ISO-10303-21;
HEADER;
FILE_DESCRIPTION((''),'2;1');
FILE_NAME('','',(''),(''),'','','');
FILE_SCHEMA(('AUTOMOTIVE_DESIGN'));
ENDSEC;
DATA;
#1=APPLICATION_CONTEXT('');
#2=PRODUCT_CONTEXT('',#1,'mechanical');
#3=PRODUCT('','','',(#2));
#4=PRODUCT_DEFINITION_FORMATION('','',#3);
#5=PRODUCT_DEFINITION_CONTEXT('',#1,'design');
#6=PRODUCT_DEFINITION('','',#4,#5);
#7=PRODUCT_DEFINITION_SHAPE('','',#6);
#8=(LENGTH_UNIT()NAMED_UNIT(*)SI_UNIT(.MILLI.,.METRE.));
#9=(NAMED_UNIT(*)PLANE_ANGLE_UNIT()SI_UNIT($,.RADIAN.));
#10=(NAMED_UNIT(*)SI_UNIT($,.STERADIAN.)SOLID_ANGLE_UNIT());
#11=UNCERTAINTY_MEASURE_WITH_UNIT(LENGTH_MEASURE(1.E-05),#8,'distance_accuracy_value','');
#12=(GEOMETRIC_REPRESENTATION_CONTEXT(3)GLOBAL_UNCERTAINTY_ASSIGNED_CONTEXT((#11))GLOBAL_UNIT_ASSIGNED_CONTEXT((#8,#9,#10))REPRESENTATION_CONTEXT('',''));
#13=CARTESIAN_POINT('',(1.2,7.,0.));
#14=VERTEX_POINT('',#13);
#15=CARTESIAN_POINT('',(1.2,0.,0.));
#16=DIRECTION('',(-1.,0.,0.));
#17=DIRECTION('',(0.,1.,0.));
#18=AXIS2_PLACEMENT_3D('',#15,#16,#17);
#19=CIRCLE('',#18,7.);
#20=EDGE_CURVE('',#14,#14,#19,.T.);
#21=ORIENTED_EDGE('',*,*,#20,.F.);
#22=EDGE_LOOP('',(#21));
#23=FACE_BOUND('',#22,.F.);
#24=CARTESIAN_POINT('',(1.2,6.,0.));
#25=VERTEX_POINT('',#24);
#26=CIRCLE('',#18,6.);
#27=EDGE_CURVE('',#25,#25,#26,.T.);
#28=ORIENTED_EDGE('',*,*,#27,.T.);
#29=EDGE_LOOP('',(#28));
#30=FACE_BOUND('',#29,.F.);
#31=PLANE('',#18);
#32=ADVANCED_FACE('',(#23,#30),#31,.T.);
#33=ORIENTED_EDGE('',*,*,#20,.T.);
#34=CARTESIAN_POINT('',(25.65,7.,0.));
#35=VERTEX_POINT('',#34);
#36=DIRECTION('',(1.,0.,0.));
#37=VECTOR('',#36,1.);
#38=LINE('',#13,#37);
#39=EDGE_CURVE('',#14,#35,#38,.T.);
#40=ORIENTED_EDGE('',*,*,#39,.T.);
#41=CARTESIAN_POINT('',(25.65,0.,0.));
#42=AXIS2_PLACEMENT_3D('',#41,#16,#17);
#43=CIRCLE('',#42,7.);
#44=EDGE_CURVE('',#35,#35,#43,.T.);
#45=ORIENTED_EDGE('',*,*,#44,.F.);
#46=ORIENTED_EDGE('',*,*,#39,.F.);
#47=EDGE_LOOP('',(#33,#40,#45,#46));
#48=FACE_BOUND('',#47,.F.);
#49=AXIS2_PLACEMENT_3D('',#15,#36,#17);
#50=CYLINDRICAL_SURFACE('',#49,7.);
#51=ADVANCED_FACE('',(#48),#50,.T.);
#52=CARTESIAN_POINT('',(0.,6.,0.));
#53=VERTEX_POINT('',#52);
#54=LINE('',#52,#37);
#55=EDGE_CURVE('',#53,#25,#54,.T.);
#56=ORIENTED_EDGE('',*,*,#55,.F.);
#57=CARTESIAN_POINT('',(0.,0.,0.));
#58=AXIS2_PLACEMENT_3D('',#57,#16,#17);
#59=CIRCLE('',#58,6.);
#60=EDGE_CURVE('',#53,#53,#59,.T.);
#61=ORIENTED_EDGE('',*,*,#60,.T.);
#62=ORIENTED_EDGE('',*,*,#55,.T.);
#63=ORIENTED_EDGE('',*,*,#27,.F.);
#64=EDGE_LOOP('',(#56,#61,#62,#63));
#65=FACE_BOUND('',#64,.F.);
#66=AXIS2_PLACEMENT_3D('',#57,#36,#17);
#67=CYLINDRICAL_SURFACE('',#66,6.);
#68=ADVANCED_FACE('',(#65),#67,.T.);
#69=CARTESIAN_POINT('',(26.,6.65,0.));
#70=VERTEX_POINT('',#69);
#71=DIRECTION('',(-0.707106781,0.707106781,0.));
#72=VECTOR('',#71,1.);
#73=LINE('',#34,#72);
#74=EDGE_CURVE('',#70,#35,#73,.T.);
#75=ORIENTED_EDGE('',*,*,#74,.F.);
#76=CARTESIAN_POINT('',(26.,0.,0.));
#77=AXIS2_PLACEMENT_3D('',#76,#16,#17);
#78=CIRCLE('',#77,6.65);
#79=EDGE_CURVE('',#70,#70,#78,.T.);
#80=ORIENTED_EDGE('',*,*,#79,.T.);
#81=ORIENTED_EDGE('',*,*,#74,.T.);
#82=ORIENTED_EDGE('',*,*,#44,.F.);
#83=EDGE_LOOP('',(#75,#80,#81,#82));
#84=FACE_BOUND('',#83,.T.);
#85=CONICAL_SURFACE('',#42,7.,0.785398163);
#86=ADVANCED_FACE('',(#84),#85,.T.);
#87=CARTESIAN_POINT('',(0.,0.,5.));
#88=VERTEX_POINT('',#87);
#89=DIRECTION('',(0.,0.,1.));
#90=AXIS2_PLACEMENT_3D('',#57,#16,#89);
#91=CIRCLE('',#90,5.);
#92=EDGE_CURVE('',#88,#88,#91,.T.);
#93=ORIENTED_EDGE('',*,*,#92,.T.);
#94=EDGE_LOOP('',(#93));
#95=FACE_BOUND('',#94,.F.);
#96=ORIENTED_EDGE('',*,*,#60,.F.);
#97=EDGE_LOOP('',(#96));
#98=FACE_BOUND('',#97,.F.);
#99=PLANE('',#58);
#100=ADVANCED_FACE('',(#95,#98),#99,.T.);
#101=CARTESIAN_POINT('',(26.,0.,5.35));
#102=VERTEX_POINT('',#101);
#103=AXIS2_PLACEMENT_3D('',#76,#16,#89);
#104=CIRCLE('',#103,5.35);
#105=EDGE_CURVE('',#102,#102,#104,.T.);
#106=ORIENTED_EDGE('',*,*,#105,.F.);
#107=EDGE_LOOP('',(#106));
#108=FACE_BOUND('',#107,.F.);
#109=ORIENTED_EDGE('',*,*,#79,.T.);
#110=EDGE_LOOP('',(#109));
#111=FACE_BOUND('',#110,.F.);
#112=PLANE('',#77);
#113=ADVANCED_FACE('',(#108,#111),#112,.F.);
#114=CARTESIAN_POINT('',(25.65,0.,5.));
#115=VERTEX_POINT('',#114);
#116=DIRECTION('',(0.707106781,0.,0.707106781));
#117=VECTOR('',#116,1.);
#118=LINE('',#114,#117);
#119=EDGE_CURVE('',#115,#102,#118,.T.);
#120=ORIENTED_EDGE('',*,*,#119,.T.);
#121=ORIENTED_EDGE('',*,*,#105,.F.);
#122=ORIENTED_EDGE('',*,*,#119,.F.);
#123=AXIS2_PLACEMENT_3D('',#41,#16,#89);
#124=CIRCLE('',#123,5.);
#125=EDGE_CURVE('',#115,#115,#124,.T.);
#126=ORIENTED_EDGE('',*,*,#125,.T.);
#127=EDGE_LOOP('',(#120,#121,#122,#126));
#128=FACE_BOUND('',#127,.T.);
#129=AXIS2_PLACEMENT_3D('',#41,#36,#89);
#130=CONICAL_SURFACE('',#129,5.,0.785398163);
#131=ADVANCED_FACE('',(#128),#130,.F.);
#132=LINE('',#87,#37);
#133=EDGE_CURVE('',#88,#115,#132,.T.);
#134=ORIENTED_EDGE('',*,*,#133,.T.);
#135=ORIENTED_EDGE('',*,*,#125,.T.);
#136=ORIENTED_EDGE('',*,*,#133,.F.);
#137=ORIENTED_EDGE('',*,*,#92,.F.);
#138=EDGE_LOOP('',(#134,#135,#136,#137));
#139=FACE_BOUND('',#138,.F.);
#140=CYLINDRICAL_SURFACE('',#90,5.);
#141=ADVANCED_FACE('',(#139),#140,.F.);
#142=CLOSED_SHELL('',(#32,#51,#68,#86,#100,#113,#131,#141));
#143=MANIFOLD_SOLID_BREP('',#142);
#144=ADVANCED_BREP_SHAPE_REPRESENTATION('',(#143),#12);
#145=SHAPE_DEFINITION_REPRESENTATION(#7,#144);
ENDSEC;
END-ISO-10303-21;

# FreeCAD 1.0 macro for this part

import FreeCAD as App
import Part
import Sketcher
Q = App.Units.Quantity


def edges_at(feature, points):
    """Names of the edges that pass closest to the given points."""
    edges = feature.Shape.Edges
    near = lambda p: min(range(len(edges)), key=lambda i: edges[i].distToShape(Part.Vertex(*p))[0])
    return sorted({f"Edge{near(p) + 1}" for p in points})

doc = App.newDocument("Part")
params = doc.addObject("Spreadsheet::Sheet", "Params")
for row, (alias, value) in enumerate([
    ("sketch1_width", "26 mm"),
    ("sketch1_width2", "1.2 mm"),
    ("sketch1_height", "6 mm"),
    ("sketch1_height2", "7 mm"),
    ("revolution_angle", "360 deg"),
    ("sketch2_diameter", "10 mm"),
    ("pocket1_length", "26 mm"),
    ("chamfer_size", "0.35 mm"),
], start=1):
    params.set(f"A{row}", alias)
    params.set(f"B{row}", "=" + value)
    params.setAlias(f"B{row}", alias)

body = doc.addObject("PartDesign::Body", "Body")

sketch1 = body.newObject("Sketcher::SketchObject", "Sketch")
sketch1.AttachmentSupport = (doc.getObject("XY_Plane"), [""])
sketch1.MapMode = "FlatFace"
sketch1.addGeometry([
    Part.LineSegment(App.Vector(0, 6, 0), App.Vector(0, 0, 0)),
    Part.LineSegment(App.Vector(0, 0, 0), App.Vector(26, 0, 0)),
    Part.LineSegment(App.Vector(26, 0, 0), App.Vector(26, 7, 0)),
    Part.LineSegment(App.Vector(26, 7, 0), App.Vector(1.2, 7, 0)),
    Part.LineSegment(App.Vector(1.2, 7, 0), App.Vector(1.2, 6, 0)),
    Part.LineSegment(App.Vector(1.2, 6, 0), App.Vector(0, 6, 0)),
], False)
sketch1.addConstraint([
    Sketcher.Constraint("Coincident", 0, 2, 1, 1),
    Sketcher.Constraint("Coincident", 1, 2, 2, 1),
    Sketcher.Constraint("Coincident", 2, 2, 3, 1),
    Sketcher.Constraint("Coincident", 3, 2, 4, 1),
    Sketcher.Constraint("Coincident", 4, 2, 5, 1),
    Sketcher.Constraint("Coincident", 5, 2, 0, 1),
    Sketcher.Constraint("Vertical", 0),
    Sketcher.Constraint("Horizontal", 1),
    Sketcher.Constraint("Vertical", 2),
    Sketcher.Constraint("Horizontal", 3),
    Sketcher.Constraint("Vertical", 4),
    Sketcher.Constraint("Horizontal", 5),
    Sketcher.Constraint("Coincident", 0, 2, -1, 1),
    Sketcher.Constraint("DistanceX", 1, 1, 1, 2, Q("26 mm")),
    Sketcher.Constraint("DistanceX", 5, 2, 5, 1, Q("1.2 mm")),
    Sketcher.Constraint("DistanceY", 0, 2, 0, 1, Q("6 mm")),
    Sketcher.Constraint("DistanceY", 2, 1, 2, 2, Q("7 mm")),
])
sketch1.setExpression("Constraints[13]", "Params.sketch1_width")
sketch1.setExpression("Constraints[14]", "Params.sketch1_width2")
sketch1.setExpression("Constraints[15]", "Params.sketch1_height")
sketch1.setExpression("Constraints[16]", "Params.sketch1_height2")
revolution = body.newObject("PartDesign::Revolution", "Revolution")
revolution.Profile = sketch1
revolution.ReferenceAxis = (sketch1, ["H_Axis"])
revolution.setExpression("Angle", "Params.revolution_angle")

sketch2 = body.newObject("Sketcher::SketchObject", "Sketch001")
sketch2.AttachmentSupport = (doc.getObject("YZ_Plane"), [""])
sketch2.MapMode = "FlatFace"
sketch2.addGeometry(Part.Circle(App.Vector(0, 0, 0), App.Vector(0, 0, 1), 5), False)
sketch2.addConstraint([
    Sketcher.Constraint("Coincident", 0, 3, -1, 1),
    Sketcher.Constraint("Diameter", 0, Q("10 mm")),
])
sketch2.setExpression("Constraints[1]", "Params.sketch2_diameter")
pocket1 = body.newObject("PartDesign::Pocket", "Pocket")
pocket1.Profile = sketch2
pocket1.setExpression("Length", "Params.pocket1_length")
pocket1.Reversed = True
doc.recompute()

chamfer = body.newObject("PartDesign::Chamfer", "Chamfer")
chamfer.Base = (pocket1, edges_at(pocket1, [(26, 0, -5), (26, -7, 0)]))
chamfer.setExpression("Size", "Params.chamfer_size")

doc.recompute()
